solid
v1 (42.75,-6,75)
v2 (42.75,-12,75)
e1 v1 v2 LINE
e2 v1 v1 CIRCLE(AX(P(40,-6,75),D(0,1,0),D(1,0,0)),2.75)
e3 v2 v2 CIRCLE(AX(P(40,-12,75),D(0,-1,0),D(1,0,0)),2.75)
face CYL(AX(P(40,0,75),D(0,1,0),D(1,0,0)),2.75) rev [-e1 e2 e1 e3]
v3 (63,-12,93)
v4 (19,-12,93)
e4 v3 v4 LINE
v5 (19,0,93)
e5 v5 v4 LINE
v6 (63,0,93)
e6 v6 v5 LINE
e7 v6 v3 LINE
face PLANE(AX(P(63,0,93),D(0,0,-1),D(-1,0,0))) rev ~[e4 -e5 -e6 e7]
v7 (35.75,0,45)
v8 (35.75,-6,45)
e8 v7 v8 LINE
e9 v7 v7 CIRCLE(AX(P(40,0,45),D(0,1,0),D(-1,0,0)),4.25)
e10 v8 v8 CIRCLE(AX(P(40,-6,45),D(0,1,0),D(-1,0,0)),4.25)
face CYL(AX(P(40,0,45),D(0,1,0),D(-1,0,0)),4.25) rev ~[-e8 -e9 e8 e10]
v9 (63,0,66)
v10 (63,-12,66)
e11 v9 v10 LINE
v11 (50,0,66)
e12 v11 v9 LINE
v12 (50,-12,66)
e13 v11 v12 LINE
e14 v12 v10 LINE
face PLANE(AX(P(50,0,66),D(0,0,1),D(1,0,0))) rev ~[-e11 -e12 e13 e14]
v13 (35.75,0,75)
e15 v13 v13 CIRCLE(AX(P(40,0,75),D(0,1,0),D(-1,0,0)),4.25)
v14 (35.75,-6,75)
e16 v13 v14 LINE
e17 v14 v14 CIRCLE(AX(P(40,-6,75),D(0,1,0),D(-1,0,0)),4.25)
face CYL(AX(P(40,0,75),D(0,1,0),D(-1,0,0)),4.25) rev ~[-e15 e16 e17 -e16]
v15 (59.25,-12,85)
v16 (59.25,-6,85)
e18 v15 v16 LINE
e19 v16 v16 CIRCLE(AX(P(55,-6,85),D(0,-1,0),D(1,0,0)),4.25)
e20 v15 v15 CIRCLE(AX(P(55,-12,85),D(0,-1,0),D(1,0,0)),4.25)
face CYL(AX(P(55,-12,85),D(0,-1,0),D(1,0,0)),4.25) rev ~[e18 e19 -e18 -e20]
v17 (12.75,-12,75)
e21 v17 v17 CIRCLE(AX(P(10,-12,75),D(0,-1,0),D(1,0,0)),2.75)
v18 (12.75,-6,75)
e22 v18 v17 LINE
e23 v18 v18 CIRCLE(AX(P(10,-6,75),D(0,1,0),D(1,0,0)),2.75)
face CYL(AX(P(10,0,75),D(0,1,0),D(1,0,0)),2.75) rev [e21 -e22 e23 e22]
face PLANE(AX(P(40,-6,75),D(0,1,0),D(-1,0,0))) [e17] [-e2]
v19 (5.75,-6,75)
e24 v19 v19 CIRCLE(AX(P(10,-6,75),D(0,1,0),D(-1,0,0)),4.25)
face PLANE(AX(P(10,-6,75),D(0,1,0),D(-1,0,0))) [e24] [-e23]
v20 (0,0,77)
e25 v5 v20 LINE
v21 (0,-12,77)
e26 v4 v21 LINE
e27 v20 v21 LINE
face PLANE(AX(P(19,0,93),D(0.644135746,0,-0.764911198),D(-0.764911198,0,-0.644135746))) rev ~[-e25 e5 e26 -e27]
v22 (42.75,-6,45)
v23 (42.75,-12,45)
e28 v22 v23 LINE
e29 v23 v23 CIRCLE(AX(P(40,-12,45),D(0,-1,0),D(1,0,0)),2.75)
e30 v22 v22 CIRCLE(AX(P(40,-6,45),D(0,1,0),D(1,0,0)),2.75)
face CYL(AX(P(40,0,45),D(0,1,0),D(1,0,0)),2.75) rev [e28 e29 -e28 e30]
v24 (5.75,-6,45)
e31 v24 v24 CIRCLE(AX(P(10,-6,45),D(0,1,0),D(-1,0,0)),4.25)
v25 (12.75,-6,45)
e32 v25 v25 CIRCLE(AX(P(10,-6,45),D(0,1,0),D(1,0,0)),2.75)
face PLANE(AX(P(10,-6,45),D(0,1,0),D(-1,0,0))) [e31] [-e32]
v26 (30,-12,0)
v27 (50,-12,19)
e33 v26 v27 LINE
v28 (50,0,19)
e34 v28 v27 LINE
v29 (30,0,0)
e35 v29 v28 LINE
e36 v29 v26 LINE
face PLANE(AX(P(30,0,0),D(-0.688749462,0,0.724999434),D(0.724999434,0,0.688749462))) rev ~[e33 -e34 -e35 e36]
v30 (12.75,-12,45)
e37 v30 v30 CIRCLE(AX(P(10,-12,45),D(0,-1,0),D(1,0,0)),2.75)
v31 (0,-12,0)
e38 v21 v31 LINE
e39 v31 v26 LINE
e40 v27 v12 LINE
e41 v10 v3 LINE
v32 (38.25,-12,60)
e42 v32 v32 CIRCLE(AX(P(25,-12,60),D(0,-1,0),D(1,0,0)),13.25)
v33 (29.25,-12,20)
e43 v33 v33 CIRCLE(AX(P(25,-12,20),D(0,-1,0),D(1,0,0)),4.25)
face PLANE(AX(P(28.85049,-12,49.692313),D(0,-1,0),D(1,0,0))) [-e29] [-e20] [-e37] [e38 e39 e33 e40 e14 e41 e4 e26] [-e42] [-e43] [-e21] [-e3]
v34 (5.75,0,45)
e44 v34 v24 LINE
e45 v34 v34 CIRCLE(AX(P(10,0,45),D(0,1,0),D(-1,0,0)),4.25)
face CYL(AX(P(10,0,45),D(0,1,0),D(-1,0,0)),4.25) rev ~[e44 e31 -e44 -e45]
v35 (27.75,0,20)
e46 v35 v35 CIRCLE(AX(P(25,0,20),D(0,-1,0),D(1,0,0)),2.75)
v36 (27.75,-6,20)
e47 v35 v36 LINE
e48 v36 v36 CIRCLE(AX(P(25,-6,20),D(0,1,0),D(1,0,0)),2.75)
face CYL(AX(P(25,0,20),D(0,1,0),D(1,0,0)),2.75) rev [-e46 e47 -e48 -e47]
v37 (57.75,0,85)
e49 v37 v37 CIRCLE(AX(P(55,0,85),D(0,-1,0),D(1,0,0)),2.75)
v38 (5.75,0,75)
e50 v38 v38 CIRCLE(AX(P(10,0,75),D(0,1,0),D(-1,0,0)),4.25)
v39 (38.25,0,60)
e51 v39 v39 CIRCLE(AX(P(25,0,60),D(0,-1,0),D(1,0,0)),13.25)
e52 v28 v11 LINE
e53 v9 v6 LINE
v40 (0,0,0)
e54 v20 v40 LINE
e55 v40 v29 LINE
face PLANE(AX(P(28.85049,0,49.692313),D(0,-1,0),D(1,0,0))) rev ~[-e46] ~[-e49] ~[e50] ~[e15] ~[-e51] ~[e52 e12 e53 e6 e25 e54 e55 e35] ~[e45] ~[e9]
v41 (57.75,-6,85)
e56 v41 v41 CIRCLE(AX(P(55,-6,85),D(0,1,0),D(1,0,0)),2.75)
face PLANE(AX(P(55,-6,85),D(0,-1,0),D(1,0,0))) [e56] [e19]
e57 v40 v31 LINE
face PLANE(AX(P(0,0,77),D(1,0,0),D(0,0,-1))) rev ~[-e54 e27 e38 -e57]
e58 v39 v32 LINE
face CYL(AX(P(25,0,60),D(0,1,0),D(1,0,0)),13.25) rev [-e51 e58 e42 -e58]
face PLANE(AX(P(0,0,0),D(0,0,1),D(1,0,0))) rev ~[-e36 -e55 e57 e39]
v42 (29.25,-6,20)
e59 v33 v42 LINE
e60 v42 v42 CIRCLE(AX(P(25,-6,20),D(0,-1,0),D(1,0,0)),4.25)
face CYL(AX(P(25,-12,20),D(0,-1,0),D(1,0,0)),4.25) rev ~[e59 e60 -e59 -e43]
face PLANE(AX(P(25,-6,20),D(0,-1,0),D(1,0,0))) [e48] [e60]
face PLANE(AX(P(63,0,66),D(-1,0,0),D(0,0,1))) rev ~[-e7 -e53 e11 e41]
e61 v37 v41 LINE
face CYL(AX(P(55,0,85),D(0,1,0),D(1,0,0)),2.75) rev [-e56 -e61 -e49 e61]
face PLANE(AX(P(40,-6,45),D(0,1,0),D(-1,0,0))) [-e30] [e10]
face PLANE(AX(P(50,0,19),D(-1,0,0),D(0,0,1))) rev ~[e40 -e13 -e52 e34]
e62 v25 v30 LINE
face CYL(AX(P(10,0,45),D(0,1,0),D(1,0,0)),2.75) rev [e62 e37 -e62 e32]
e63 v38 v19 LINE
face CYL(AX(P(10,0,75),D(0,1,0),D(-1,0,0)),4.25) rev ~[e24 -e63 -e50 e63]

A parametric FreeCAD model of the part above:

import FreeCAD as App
import Part
import Sketcher

V = App.Vector


def add_polygon(sketch, points):
    """Adds a closed chain of lines whose ends are joined by coincident constraints."""
    first, n = sketch.GeometryCount, len(points)
    for a, b in zip(points, points[1:] + points[:1]):
        sketch.addGeometry(Part.LineSegment(App.Vector(*a, 0), App.Vector(*b, 0)), False)
    for i in range(n):
        sketch.addConstraint(Sketcher.Constraint("Coincident", first + i, 2, first + (i + 1) % n, 1))

doc = App.newDocument("Part")
params = doc.addObject("Spreadsheet::Sheet", "Params")
for row, (alias, value) in enumerate([
    ("sketch1_diameter", "5.5 mm"),
    ("sketch1_diameter2", "26.5 mm"),
    ("sketch1_width", "30 mm"),
    ("sketch1_width2", "13 mm"),
    ("sketch1_width3", "44 mm"),
    ("pad1_length", "12 mm"),
    ("sketch2_diameter", "8.5 mm"),
    ("pocket1_length", "6 mm"),
    ("sketch3_diameter", "8.5 mm"),
    ("pocket2_length", "6 mm"),
], start=1):
    params.set(f"A{row}", alias)
    params.set(f"B{row}", "=" + value)
    params.setAlias(f"B{row}", alias)

body = doc.addObject("PartDesign::Body", "Body")

# Sketch on XZ plane
sketch1 = body.newObject("Sketcher::SketchObject", "Sketch")
sketch1.AttachmentSupport = (doc.getObject("XZ_Plane"), [""])
sketch1.MapMode = "FlatFace"
add_polygon(sketch1, [(19, 93), (0, 77), (0, 0), (30, 0), (50, 19), (50, 66), (63, 66), (63, 93)])  # lines 0-7
sketch1.addGeometry(Part.Circle(V(25, 20, 0), V(0, 0, 1), 2.8), False)  # 8
sketch1.addGeometry(Part.Circle(V(10, 45, 0), V(0, 0, 1), 2.8), False)  # 9
sketch1.addGeometry(Part.Circle(V(40, 45, 0), V(0, 0, 1), 2.8), False)  # 10
sketch1.addGeometry(Part.Circle(V(25, 60, 0), V(0, 0, 1), 13.2), False)  # 11
sketch1.addGeometry(Part.Circle(V(10, 75, 0), V(0, 0, 1), 2.8), False)  # 12
sketch1.addGeometry(Part.Circle(V(40, 75, 0), V(0, 0, 1), 2.8), False)  # 13
sketch1.addGeometry(Part.Circle(V(55, 85, 0), V(0, 0, 1), 2.8), False)  # 14
sketch1.addConstraint([
    Sketcher.Constraint("Vertical", 1),
    Sketcher.Constraint("Horizontal", 2),
    Sketcher.Constraint("Vertical", 4),
    Sketcher.Constraint("Horizontal", 5),
    Sketcher.Constraint("Vertical", 6),
    Sketcher.Constraint("Horizontal", 7),
    Sketcher.Constraint("Coincident", 1, 2, -1, 1),
    Sketcher.Constraint("Equal", 8, 9),
    Sketcher.Constraint("Equal", 9, 10),
    Sketcher.Constraint("Equal", 10, 12),
    Sketcher.Constraint("Equal", 12, 13),
    Sketcher.Constraint("Equal", 13, 14),
    Sketcher.Constraint("Horizontal", 9, 3, 10, 3),
    Sketcher.Constraint("Horizontal", 12, 3, 13, 3),
    Sketcher.Constraint("Vertical", 8, 3, 11, 3),
    Sketcher.Constraint("Vertical", 9, 3, 12, 3),
    Sketcher.Constraint("Vertical", 10, 3, 13, 3),
    Sketcher.Constraint("Diameter", 8, 5.5),
    Sketcher.Constraint("Diameter", 11, 26.5),
    Sketcher.Constraint("DistanceX", 2, 1, 2, 2, 30.0),
    Sketcher.Constraint("DistanceX", 5, 1, 5, 2, 13.0),
    Sketcher.Constraint("DistanceX", 7, 2, 7, 1, 44.0),
    Sketcher.Constraint("DistanceY", 1, 2, 1, 1, 77.0),
    Sketcher.Constraint("DistanceY", 4, 1, 4, 2, 47.0),
    Sketcher.Constraint("DistanceY", 6, 1, 6, 2, 27.0),
    Sketcher.Constraint("DistanceX", -1, 1, 8, 3, 25.0),
    Sketcher.Constraint("DistanceY", -1, 1, 8, 3, 20.0),
    Sketcher.Constraint("DistanceX", -1, 1, 9, 3, 10.0),
    Sketcher.Constraint("DistanceY", -1, 1, 9, 3, 45.0),
    Sketcher.Constraint("DistanceX", -1, 1, 10, 3, 40.0),
    Sketcher.Constraint("DistanceY", -1, 1, 11, 3, 60.0),
    Sketcher.Constraint("DistanceY", -1, 1, 12, 3, 75.0),
    Sketcher.Constraint("DistanceX", -1, 1, 14, 3, 55.0),
    Sketcher.Constraint("DistanceY", -1, 1, 14, 3, 85.0),
    Sketcher.Constraint("DistanceX", -1, 1, 3, 2, 50.0),
    Sketcher.Constraint("DistanceY", -1, 1, 3, 2, 19.0),
])
sketch1.setExpression("Constraints[25]", "Params.sketch1_diameter")
sketch1.setExpression("Constraints[26]", "Params.sketch1_diameter2")
sketch1.setExpression("Constraints[27]", "Params.sketch1_width")
sketch1.setExpression("Constraints[28]", "Params.sketch1_width2")
sketch1.setExpression("Constraints[29]", "Params.sketch1_width3")
pad1 = body.newObject("PartDesign::Pad", "Pad")
pad1.Profile = sketch1
pad1.setExpression("Length", "Params.pad1_length")

# Sketch on XZ plane
sketch2 = body.newObject("Sketcher::SketchObject", "Sketch001")
sketch2.AttachmentSupport = (doc.getObject("XZ_Plane"), [""])
sketch2.MapMode = "FlatFace"
sketch2.AttachmentOffset = App.Placement(V(0, 0, 12), App.Rotation())
sketch2.addGeometry([
    Part.Circle(V(55, 85, 0), V(0, 0, 1), 4.2),
    Part.Circle(V(25, 20, 0), V(0, 0, 1), 4.2),
], False)
sketch2.addConstraint([
    Sketcher.Constraint("Equal", 0, 1),
    Sketcher.Constraint("Diameter", 0, 8.5),
    Sketcher.Constraint("DistanceX", -1, 1, 0, 3, 55.0),
    Sketcher.Constraint("DistanceY", -1, 1, 0, 3, 85.0),
    Sketcher.Constraint("DistanceX", -1, 1, 1, 3, 25.0),
    Sketcher.Constraint("DistanceY", -1, 1, 1, 3, 20.0),
])
sketch2.setExpression("Constraints[1]", "Params.sketch2_diameter")
pocket1 = body.newObject("PartDesign::Pocket", "Pocket")
pocket1.Profile = sketch2
pocket1.setExpression("Length", "Params.pocket1_length")

# Sketch on XZ plane
sketch3 = body.newObject("Sketcher::SketchObject", "Sketch002")
sketch3.AttachmentSupport = (doc.getObject("XZ_Plane"), [""])
sketch3.MapMode = "FlatFace"
sketch3.addGeometry([
    Part.Circle(V(10, 75, 0), V(0, 0, 1), 4.2),
    Part.Circle(V(40, 75, 0), V(0, 0, 1), 4.2),
    Part.Circle(V(40, 45, 0), V(0, 0, 1), 4.2),
    Part.Circle(V(10, 45, 0), V(0, 0, 1), 4.2),
], False)
sketch3.addConstraint([
    Sketcher.Constraint("Equal", 0, 1),
    Sketcher.Constraint("Equal", 1, 2),
    Sketcher.Constraint("Equal", 2, 3),
    Sketcher.Constraint("Horizontal", 0, 3, 1, 3),
    Sketcher.Constraint("Horizontal", 2, 3, 3, 3),
    Sketcher.Constraint("Vertical", 1, 3, 2, 3),
    Sketcher.Constraint("Vertical", 0, 3, 3, 3),
    Sketcher.Constraint("Diameter", 0, 8.5),
    Sketcher.Constraint("DistanceX", -1, 1, 0, 3, 10.0),
    Sketcher.Constraint("DistanceY", -1, 1, 0, 3, 75.0),
    Sketcher.Constraint("DistanceX", -1, 1, 1, 3, 40.0),
    Sketcher.Constraint("DistanceY", -1, 1, 2, 3, 45.0),
])
sketch3.setExpression("Constraints[7]", "Params.sketch3_diameter")
pocket2 = body.newObject("PartDesign::Pocket", "Pocket001")
pocket2.Profile = sketch3
pocket2.setExpression("Length", "Params.pocket2_length")
pocket2.Reversed = True

doc.recompute()
